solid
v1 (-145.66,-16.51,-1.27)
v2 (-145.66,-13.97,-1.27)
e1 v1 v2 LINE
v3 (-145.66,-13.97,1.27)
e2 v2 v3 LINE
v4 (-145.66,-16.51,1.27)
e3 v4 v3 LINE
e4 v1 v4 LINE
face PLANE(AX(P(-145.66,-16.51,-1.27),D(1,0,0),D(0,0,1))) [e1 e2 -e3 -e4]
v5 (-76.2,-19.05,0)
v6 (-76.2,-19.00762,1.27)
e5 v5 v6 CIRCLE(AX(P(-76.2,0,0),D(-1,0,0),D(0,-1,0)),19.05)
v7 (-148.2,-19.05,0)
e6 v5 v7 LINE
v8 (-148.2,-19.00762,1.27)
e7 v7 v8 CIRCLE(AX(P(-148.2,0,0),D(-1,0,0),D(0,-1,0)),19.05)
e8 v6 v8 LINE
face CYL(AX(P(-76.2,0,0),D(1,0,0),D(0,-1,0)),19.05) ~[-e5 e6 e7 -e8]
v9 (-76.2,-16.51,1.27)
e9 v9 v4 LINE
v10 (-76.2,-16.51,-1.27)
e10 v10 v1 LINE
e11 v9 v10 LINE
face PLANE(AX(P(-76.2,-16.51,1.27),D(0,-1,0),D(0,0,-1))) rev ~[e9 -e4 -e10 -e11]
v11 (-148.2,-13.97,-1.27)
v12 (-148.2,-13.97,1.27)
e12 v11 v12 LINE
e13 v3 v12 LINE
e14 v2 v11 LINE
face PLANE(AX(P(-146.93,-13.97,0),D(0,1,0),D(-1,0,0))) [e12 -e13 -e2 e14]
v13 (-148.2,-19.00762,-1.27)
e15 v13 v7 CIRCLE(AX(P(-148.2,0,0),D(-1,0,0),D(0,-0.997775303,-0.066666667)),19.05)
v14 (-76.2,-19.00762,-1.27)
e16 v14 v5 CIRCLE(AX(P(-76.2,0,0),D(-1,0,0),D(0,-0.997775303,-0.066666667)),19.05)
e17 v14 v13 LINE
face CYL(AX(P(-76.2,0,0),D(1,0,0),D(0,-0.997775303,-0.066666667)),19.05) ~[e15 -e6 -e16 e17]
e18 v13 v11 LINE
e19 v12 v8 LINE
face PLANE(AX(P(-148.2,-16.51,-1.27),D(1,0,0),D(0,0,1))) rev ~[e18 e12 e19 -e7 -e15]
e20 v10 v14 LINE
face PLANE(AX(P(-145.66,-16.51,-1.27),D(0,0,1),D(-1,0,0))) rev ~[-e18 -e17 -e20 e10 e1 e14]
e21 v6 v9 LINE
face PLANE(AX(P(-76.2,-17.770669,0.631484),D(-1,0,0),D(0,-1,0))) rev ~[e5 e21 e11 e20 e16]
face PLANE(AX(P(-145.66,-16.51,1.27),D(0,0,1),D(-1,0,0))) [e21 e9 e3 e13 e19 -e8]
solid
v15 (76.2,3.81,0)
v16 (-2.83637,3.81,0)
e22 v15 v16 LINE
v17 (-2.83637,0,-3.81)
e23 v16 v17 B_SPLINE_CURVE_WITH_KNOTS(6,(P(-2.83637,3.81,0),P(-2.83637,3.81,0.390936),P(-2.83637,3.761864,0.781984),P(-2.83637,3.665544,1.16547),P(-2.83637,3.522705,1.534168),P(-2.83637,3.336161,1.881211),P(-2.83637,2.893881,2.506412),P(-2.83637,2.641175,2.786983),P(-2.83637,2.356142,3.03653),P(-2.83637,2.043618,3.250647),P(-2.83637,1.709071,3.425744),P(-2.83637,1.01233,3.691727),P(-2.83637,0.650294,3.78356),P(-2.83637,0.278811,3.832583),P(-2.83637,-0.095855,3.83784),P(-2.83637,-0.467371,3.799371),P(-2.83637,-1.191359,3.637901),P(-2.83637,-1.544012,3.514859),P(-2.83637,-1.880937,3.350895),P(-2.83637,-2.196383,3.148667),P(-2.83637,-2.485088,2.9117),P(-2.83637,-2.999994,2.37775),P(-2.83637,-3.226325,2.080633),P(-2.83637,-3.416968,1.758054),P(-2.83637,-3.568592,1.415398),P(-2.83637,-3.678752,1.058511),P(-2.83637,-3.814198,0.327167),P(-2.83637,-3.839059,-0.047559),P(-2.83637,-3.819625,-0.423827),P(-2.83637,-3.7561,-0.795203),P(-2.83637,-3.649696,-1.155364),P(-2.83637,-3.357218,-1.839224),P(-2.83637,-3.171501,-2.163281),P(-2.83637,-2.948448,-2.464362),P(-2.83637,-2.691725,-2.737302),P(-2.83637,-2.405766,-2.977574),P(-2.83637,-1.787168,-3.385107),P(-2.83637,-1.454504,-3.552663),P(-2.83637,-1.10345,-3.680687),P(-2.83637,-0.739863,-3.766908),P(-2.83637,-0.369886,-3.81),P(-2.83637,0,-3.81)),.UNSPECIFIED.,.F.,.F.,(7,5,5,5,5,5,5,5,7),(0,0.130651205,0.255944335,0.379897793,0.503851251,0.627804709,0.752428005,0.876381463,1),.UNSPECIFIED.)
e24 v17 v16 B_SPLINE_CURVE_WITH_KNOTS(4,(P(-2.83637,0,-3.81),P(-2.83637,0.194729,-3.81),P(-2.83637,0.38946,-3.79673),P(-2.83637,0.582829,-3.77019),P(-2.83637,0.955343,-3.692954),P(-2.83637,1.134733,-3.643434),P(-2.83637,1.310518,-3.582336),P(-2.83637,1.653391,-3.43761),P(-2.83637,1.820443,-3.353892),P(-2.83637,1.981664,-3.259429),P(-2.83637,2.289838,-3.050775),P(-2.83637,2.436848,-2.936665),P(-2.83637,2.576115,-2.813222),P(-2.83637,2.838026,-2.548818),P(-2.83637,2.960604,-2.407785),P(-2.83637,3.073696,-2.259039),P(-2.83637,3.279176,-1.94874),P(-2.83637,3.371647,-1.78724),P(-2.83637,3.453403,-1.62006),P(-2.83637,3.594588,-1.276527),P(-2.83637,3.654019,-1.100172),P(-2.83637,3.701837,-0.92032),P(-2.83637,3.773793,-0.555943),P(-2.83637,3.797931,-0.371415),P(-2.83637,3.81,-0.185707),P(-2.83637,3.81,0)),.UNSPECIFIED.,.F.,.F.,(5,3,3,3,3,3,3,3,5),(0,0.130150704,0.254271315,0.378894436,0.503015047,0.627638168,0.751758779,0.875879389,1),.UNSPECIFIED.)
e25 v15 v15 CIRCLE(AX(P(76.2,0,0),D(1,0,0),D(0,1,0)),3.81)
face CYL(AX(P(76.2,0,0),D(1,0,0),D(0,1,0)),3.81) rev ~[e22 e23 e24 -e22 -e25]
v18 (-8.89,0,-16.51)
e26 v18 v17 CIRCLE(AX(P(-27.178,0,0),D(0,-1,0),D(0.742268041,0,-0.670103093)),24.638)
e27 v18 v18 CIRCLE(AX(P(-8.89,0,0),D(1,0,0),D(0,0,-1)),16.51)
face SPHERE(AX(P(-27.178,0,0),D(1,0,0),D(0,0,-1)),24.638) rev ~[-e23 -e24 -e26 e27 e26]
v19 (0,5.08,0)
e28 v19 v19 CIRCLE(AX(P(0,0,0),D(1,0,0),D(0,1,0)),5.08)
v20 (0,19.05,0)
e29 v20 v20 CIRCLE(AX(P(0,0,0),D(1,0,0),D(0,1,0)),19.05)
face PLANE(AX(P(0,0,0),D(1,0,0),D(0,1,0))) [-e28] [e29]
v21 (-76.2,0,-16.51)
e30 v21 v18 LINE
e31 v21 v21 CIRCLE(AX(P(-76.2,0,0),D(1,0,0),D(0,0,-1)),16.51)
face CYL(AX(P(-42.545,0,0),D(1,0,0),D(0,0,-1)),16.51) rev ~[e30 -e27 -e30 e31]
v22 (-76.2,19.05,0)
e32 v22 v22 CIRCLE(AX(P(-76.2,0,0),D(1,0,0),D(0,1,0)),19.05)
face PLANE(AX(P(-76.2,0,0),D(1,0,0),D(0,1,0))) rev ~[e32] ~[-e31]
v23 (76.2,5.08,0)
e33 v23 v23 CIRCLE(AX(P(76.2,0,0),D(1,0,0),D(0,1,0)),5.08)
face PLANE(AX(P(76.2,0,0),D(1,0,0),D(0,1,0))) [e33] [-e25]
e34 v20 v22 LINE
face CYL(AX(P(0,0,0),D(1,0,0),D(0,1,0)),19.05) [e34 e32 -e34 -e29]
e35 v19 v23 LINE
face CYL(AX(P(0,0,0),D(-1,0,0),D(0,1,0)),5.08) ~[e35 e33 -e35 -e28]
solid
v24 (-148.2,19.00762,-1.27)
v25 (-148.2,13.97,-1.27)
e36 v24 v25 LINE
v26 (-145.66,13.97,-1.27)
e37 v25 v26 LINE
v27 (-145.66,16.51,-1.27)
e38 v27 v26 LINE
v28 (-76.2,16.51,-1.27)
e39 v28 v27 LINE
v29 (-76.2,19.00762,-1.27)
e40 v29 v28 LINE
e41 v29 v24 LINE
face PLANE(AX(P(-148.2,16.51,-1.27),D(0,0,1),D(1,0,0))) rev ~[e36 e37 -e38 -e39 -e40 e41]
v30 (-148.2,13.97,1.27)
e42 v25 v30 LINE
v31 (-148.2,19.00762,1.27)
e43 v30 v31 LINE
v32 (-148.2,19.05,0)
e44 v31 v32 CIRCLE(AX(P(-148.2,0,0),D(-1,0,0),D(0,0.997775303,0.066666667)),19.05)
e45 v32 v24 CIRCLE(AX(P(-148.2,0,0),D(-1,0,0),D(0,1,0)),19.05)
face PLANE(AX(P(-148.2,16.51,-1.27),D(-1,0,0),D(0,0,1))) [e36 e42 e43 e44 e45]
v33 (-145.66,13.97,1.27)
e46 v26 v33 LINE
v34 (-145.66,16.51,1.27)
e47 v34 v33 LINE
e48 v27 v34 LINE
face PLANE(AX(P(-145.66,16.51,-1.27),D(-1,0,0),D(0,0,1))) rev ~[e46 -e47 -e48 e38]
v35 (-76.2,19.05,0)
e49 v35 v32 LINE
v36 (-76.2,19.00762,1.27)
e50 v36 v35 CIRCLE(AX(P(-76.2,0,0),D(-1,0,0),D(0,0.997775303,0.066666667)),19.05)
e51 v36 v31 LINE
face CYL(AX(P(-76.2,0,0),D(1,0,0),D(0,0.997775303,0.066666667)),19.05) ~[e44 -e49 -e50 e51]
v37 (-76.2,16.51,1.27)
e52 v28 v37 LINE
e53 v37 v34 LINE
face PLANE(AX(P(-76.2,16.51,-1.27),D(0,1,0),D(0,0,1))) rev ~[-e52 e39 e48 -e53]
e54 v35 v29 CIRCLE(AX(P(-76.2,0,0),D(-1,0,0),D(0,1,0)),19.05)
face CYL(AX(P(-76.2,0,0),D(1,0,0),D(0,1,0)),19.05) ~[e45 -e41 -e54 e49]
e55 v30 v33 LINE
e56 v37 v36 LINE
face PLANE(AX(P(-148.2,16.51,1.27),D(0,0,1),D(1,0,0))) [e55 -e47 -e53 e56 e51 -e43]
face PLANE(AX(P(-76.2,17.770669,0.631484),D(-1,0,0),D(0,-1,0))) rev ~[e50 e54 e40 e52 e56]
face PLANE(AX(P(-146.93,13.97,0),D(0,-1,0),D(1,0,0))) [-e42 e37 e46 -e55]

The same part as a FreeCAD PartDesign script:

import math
import FreeCAD as App
import Part
import Sketcher

V = App.Vector
Q = App.Units.Quantity

doc = App.newDocument("Part")
body = doc.addObject("PartDesign::Body", "Body")

# Sketch on YZ plane
sketch1 = body.newObject("Sketcher::SketchObject", "Sketch")
sketch1.AttachmentSupport = (doc.getObject("YZ_Plane"), [""])
sketch1.MapMode = "FlatFace"
sketch1.addGeometry(Part.Circle(V(0, 0, 0), V(0, 0, 1), 19), False)
sketch1.addConstraint([
    Sketcher.Constraint("Coincident", 0, 3, -1, 1),
    Sketcher.Constraint("Diameter", 0, Q("1.5 in")),
])
pad1 = body.newObject("PartDesign::Pad", "Pad")
pad1.Profile = sketch1
pad1.Length = Q("3 in")
pad1.Reversed = True

# Sketch on YZ plane
sketch2 = body.newObject("Sketcher::SketchObject", "Sketch001")
sketch2.AttachmentSupport = (doc.getObject("YZ_Plane"), [""])
sketch2.MapMode = "FlatFace"
sketch2.addGeometry(Part.Circle(V(0, 0, 0), V(0, 0, 1), 5), False)
sketch2.addConstraint([
    Sketcher.Constraint("Coincident", 0, 3, -1, 1),
    Sketcher.Constraint("Diameter", 0, Q("0.4 in")),
])
pad2 = body.newObject("PartDesign::Pad", "Pad001")
pad2.Profile = sketch2
pad2.Length = Q("3 in")

# Sketch on YZ plane
sketch3 = body.newObject("Sketcher::SketchObject", "Sketch002")
sketch3.AttachmentSupport = (doc.getObject("YZ_Plane"), [""])
sketch3.MapMode = "FlatFace"
sketch3.AttachmentOffset = App.Placement(V(0, 0, 3 * 25.4), App.Rotation())
sketch3.addGeometry(Part.Circle(V(0, 0, 0), V(0, 0, 1), 3.8), False)
sketch3.addConstraint([
    Sketcher.Constraint("Coincident", 0, 3, -1, 1),
    Sketcher.Constraint("Diameter", 0, Q("0.3 in")),
])
pocket1 = body.newObject("PartDesign::Pocket", "Pocket")
pocket1.Profile = sketch3
pocket1.Length = Q("3.5 in")

# Sketch on XZ plane
sketch4 = body.newObject("Sketcher::SketchObject", "Sketch003")
sketch4.AttachmentSupport = (doc.getObject("XZ_Plane"), [""])
sketch4.MapMode = "FlatFace"
sketch4.addGeometry([
    Part.LineSegment(V(-76, 0, 0), V(-76, -17, 0)),
    Part.LineSegment(V(-76, -17, 0), V(-9, -17, 0)),
    Part.ArcOfCircle(Part.Circle(V(-27, 0, 0), V(0, 0, 1), 25), math.radians(-42), math.radians(0)),
    Part.LineSegment(V(-3, 0, 0), V(-76, 0, 0)),
], False)
sketch4.addConstraint([
    Sketcher.Constraint("Coincident", 0, 2, 1, 1),
    Sketcher.Constraint("Coincident", 1, 2, 2, 1),
    Sketcher.Constraint("Coincident", 2, 2, 3, 1),
    Sketcher.Constraint("Coincident", 3, 2, 0, 1),
    Sketcher.Constraint("Vertical", 0),
    Sketcher.Constraint("Horizontal", 1),
    Sketcher.Constraint("Horizontal", 3),
    Sketcher.Constraint("PointOnObject", 2, 3, -1),
    Sketcher.Constraint("PointOnObject", 2, 2, -1),
    Sketcher.Constraint("Radius", 2, Q("0.97 in")),
    Sketcher.Constraint("DistanceX", 3, 2, 3, 1, Q("2.9 in")),
    Sketcher.Constraint("DistanceX", 0, 2, -1, 1, Q("3 in")),
    Sketcher.Constraint("DistanceX", 1, 1, 1, 2, Q("2.65 in")),
])
groove = body.newObject("PartDesign::Groove", "Groove")
groove.Profile = sketch4
groove.ReferenceAxis = (sketch4, ["H_Axis"])
groove.Angle = 360
body2 = doc.addObject("PartDesign::Body", "Body001")

# Sketch on YZ plane
sketch5 = body2.newObject("Sketcher::SketchObject", "Sketch004")
sketch5.AttachmentSupport = (doc.getObject("YZ_Plane001"), [""])
sketch5.MapMode = "FlatFace"
sketch5.AttachmentOffset = App.Placement(V(0, 0, -3 * 25.4), App.Rotation())
sketch5.addGeometry([
    Part.LineSegment(V(16.5, 1.3, 0), V(19, 1.3, 0)),  # 0
    Part.ArcOfCircle(Part.Circle(V(0, 0, 0), V(0, 0, 1), 19), math.radians(0), math.radians(3.82)),  # 1
    Part.ArcOfCircle(Part.Circle(V(0, 0, 0), V(0, 0, 1), 19), math.radians(-3.82), math.radians(0)),  # 2
    Part.LineSegment(V(19, -1.3, 0), V(16.5, -1.3, 0)),  # 3
    Part.LineSegment(V(16.5, -1.3, 0), V(16.5, 1.3, 0)),  # 4
], False)
sketch5.addConstraint([
    Sketcher.Constraint("Coincident", 0, 2, 1, 2),
    Sketcher.Constraint("Tangent", 1, 1, 2, 2),
    Sketcher.Constraint("Coincident", 2, 1, 3, 1),
    Sketcher.Constraint("Coincident", 3, 2, 4, 1),
    Sketcher.Constraint("Coincident", 4, 2, 0, 1),
    Sketcher.Constraint("Horizontal", 0),
    Sketcher.Constraint("Horizontal", 3),
    Sketcher.Constraint("Vertical", 4),
    Sketcher.Constraint("Coincident", 1, 3, -1, 1),
    Sketcher.Constraint("Equal", 1, 2),
    Sketcher.Constraint("PointOnObject", 1, 1, -1),
    Sketcher.Constraint("Vertical", 0, 2, 2, 1),
    Sketcher.Constraint("Radius", 1, Q("0.75 in")),
    Sketcher.Constraint("DistanceY", 4, 1, 4, 2, Q("0.1 in")),
    Sketcher.Constraint("DistanceX", 3, 2, 1, 1, Q("0.1 in")),
])
pad3 = body2.newObject("PartDesign::Pad", "Pad002")
pad3.Profile = sketch5
pad3.Length = 72
pad3.Reversed = True

# Sketch on XZ plane
sketch6 = body2.newObject("Sketcher::SketchObject", "Sketch005")
sketch6.AttachmentSupport = (doc.getObject("XZ_Plane001"), [""])
sketch6.MapMode = "FlatFace"
sketch6.AttachmentOffset = App.Placement(V(0, 0, -0.65 * 25.4), App.Rotation())
sketch6.addGeometry([
    Part.LineSegment(V(-148.2, 1.3, 0), V(-148.2, -1.3, 0)),
    Part.LineSegment(V(-148.2, -1.3, 0), V(-145.7, -1.3, 0)),
    Part.LineSegment(V(-145.7, -1.3, 0), V(-145.7, 1.3, 0)),
    Part.LineSegment(V(-145.7, 1.3, 0), V(-148.2, 1.3, 0)),
], False)
sketch6.addConstraint([
    Sketcher.Constraint("Coincident", 0, 2, 1, 1),
    Sketcher.Constraint("Coincident", 1, 2, 2, 1),
    Sketcher.Constraint("Coincident", 2, 2, 3, 1),
    Sketcher.Constraint("Coincident", 3, 2, 0, 1),
    Sketcher.Constraint("Vertical", 0),
    Sketcher.Constraint("Horizontal", 1),
    Sketcher.Constraint("Vertical", 2),
    Sketcher.Constraint("Horizontal", 3),
    Sketcher.Constraint("Equal", 3, 0),
    Sketcher.Constraint("DistanceX", 1, 1, 1, 2, Q("0.1 in")),
    Sketcher.Constraint("DistanceY", 0, 2, -1, 1, Q("0.05 in")),
    Sketcher.Constraint("DistanceX", 0, 2, -1, 1, 148.2),
])
pad4 = body2.newObject("PartDesign::Pad", "Pad003")
pad4.Profile = sketch6
pad4.Length = Q("0.1 in")
body3 = doc.addObject("PartDesign::Body", "Body002")

# Sketch on YZ plane
sketch7 = body3.newObject("Sketcher::SketchObject", "Sketch006")
sketch7.AttachmentSupport = (doc.getObject("YZ_Plane002"), [""])
sketch7.MapMode = "FlatFace"
sketch7.AttachmentOffset = App.Placement(V(0, 0, -3 * 25.4), App.Rotation())
sketch7.addGeometry([
    Part.ArcOfCircle(Part.Circle(V(0, 0, 0), V(0, 0, 1), 19), math.radians(176.18), math.radians(180)),  # 0
    Part.LineSegment(V(-19, 1.3, 0), V(-16.5, 1.3, 0)),  # 1
    Part.LineSegment(V(-16.5, 1.3, 0), V(-16.5, -1.3, 0)),  # 2
    Part.LineSegment(V(-16.5, -1.3, 0), V(-19, -1.3, 0)),  # 3
    Part.ArcOfCircle(Part.Circle(V(0, 0, 0), V(0, 0, 1), 19), math.radians(180), math.radians(183.82)),  # 4
], False)
sketch7.addConstraint([
    Sketcher.Constraint("Coincident", 0, 1, 1, 1),
    Sketcher.Constraint("Coincident", 1, 2, 2, 1),
    Sketcher.Constraint("Coincident", 2, 2, 3, 1),
    Sketcher.Constraint("Coincident", 3, 2, 4, 2),
    Sketcher.Constraint("Tangent", 4, 1, 0, 2),
    Sketcher.Constraint("Horizontal", 1),
    Sketcher.Constraint("Vertical", 2),
    Sketcher.Constraint("Horizontal", 3),
    Sketcher.Constraint("Coincident", 0, 3, -1, 1),
    Sketcher.Constraint("Equal", 0, 4),
    Sketcher.Constraint("PointOnObject", 4, 1, -1),
    Sketcher.Constraint("Vertical", 0, 1, 3, 2),
    Sketcher.Constraint("Radius", 0, Q("0.75 in")),
    Sketcher.Constraint("DistanceY", 2, 2, 2, 1, Q("0.1 in")),
    Sketcher.Constraint("DistanceX", 4, 1, 1, 2, Q("0.1 in")),
])
pad5 = body3.newObject("PartDesign::Pad", "Pad004")
pad5.Profile = sketch7
pad5.Length = 72
pad5.Reversed = True

# Sketch on XZ plane
sketch8 = body3.newObject("Sketcher::SketchObject", "Sketch007")
sketch8.AttachmentSupport = (doc.getObject("XZ_Plane002"), [""])
sketch8.MapMode = "FlatFace"
sketch8.AttachmentOffset = App.Placement(V(0, 0, 0.65 * 25.4), App.Rotation())
sketch8.addGeometry([
    Part.LineSegment(V(-145.7, 1.3, 0), V(-145.7, -1.3, 0)),
    Part.LineSegment(V(-145.7, -1.3, 0), V(-148.2, -1.3, 0)),
    Part.LineSegment(V(-148.2, -1.3, 0), V(-148.2, 1.3, 0)),
    Part.LineSegment(V(-148.2, 1.3, 0), V(-145.7, 1.3, 0)),
], False)
sketch8.addConstraint([
    Sketcher.Constraint("Coincident", 0, 2, 1, 1),
    Sketcher.Constraint("Coincident", 1, 2, 2, 1),
    Sketcher.Constraint("Coincident", 2, 2, 3, 1),
    Sketcher.Constraint("Coincident", 3, 2, 0, 1),
    Sketcher.Constraint("Vertical", 0),
    Sketcher.Constraint("Horizontal", 1),
    Sketcher.Constraint("Vertical", 2),
    Sketcher.Constraint("Horizontal", 3),
    Sketcher.Constraint("Equal", 3, 0),
    Sketcher.Constraint("DistanceX", 1, 2, 1, 1, Q("0.1 in")),
    Sketcher.Constraint("DistanceY", 0, 2, -1, 1, Q("0.05 in")),
    Sketcher.Constraint("DistanceX", 0, 2, -1, 1, 145.66),
])
pad6 = body3.newObject("PartDesign::Pad", "Pad005")
pad6.Profile = sketch8
pad6.Length = Q("0.1 in")
pad6.Reversed = True

doc.recompute()
